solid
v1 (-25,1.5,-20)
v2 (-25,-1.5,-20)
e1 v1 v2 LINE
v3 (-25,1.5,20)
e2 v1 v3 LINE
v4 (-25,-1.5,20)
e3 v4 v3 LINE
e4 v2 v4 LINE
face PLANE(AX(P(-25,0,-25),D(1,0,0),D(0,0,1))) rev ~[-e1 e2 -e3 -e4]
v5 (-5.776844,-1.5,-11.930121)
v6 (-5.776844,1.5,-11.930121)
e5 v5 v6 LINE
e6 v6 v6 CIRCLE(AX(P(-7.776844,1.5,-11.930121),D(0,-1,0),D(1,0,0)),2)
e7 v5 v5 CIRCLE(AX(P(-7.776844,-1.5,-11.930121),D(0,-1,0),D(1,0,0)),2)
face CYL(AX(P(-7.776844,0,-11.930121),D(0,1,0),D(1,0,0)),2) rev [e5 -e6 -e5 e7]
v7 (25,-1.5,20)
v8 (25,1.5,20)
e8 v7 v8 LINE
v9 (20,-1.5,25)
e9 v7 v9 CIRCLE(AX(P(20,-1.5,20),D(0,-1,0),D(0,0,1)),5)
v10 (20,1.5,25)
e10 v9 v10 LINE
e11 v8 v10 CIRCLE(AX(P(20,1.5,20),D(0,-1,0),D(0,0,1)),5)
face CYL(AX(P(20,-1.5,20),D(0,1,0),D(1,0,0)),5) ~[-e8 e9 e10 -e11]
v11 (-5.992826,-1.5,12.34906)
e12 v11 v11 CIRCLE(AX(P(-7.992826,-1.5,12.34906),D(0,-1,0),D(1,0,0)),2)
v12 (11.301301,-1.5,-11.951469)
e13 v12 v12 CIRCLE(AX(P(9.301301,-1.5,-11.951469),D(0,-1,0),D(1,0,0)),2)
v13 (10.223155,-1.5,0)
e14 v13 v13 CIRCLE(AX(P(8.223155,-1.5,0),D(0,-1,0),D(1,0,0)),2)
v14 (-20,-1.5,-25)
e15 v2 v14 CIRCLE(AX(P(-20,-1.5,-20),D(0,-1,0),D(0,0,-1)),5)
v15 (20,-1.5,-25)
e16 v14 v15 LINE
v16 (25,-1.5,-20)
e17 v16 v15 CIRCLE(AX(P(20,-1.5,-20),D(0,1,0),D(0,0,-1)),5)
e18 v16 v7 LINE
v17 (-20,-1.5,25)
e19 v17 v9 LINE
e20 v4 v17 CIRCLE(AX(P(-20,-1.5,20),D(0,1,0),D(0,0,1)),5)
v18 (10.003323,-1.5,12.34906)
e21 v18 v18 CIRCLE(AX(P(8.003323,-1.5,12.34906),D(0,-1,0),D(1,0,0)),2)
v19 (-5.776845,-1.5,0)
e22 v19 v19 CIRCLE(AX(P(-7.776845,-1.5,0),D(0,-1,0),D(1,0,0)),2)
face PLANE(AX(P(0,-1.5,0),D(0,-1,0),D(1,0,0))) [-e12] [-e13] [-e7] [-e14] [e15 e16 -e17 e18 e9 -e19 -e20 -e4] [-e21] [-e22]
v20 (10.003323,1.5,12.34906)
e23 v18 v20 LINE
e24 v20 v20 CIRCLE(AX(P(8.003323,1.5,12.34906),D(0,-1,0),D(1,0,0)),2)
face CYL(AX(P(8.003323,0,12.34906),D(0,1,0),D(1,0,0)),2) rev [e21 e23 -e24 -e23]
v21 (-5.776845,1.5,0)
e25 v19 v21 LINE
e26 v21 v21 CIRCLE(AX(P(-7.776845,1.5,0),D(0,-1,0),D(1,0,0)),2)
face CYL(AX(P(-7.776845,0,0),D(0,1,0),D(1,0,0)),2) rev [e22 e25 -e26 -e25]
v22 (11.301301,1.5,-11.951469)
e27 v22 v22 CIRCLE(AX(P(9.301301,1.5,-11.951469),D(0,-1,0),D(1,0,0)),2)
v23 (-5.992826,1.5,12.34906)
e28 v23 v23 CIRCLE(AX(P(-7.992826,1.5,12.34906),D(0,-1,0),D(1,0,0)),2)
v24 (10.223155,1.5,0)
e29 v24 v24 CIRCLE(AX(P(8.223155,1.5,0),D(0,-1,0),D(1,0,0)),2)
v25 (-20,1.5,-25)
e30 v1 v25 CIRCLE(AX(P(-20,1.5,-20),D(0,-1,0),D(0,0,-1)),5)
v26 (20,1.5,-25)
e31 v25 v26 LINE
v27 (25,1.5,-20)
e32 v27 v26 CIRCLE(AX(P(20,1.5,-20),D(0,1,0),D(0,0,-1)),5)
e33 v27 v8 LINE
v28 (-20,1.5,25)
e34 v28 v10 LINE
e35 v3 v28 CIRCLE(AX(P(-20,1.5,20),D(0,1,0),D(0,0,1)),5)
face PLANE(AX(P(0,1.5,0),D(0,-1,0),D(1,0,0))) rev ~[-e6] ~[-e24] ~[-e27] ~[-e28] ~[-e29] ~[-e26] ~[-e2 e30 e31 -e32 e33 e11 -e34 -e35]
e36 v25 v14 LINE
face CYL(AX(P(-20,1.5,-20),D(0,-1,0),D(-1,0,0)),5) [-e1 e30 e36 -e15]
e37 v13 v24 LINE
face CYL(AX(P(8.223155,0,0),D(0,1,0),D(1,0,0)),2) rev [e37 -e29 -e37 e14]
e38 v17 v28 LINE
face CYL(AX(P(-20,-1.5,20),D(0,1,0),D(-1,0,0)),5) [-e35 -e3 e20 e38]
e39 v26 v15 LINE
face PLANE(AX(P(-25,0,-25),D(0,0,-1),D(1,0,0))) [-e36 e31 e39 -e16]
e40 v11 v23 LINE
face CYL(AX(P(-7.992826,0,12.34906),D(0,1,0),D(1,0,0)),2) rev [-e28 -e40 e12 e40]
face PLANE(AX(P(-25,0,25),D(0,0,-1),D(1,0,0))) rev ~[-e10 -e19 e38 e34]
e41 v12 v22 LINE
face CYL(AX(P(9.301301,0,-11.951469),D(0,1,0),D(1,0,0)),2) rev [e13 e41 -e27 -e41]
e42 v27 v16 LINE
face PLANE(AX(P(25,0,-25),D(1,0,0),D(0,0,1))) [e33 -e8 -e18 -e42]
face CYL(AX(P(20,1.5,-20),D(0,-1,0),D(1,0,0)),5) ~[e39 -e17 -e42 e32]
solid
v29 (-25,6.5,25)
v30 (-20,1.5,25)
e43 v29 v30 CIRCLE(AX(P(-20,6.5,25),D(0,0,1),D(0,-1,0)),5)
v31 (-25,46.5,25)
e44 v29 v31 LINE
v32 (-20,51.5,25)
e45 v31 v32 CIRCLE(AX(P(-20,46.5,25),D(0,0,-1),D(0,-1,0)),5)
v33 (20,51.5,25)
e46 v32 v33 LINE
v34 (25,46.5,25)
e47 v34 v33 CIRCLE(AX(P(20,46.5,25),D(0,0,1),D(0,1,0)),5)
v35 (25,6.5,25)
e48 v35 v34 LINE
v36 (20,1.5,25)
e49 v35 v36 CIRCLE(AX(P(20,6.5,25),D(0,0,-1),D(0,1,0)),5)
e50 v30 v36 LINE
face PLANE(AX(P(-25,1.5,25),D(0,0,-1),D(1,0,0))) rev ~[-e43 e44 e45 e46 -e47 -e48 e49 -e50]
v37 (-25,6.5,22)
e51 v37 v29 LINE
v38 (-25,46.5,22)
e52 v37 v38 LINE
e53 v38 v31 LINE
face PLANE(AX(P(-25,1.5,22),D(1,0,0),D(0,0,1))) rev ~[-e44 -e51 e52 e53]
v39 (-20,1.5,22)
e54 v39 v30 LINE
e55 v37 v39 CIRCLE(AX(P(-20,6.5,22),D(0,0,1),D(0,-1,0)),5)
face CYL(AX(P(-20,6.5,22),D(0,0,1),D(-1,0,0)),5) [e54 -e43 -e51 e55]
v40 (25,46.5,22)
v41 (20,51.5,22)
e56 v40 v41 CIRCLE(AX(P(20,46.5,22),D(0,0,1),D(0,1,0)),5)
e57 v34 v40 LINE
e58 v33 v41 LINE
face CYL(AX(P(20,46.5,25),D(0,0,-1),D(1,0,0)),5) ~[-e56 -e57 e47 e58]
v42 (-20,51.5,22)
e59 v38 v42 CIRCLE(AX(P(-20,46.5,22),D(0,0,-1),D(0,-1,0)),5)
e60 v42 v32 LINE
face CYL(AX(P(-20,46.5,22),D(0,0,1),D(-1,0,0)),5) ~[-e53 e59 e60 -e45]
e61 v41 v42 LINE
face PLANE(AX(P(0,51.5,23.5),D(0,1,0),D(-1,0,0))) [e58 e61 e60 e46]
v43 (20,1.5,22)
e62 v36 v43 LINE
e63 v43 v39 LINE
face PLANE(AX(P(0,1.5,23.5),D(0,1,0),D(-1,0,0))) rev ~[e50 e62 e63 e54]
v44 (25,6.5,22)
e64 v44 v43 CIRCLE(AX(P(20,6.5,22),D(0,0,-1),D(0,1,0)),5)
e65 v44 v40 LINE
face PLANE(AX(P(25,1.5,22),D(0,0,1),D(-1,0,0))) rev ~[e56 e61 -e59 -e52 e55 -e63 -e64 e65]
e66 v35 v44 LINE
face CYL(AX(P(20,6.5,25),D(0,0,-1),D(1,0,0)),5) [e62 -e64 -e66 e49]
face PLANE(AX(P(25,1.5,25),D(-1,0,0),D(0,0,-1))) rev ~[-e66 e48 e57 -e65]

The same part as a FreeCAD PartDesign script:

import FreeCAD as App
import Part
import Sketcher

V = App.Vector


def edges_at(feature, points):
    """Names of the edges that pass closest to the given points."""
    edges = feature.Shape.Edges
    near = lambda p: min(range(len(edges)), key=lambda i: edges[i].distToShape(Part.Vertex(*p))[0])
    return sorted({f"Edge{near(p) + 1}" for p in points})


def add_polygon(sketch, points):
    """Adds a closed chain of lines whose ends are joined by coincident constraints."""
    first, n = sketch.GeometryCount, len(points)
    for a, b in zip(points, points[1:] + points[:1]):
        sketch.addGeometry(Part.LineSegment(App.Vector(*a, 0), App.Vector(*b, 0)), False)
    for i in range(n):
        sketch.addConstraint(Sketcher.Constraint("Coincident", first + i, 2, first + (i + 1) % n, 1))

doc = App.newDocument("Part")
body = doc.addObject("PartDesign::Body", "Body")

# Sketch on XZ plane
sketch1 = body.newObject("Sketcher::SketchObject", "Sketch")
sketch1.AttachmentSupport = (doc.getObject("XZ_Plane"), [""])
sketch1.MapMode = "FlatFace"
add_polygon(sketch1, [(-25, 25), (-25, -25), (25, -25), (25, 25)])  # lines 0-3
sketch1.addGeometry(Part.Circle(V(-7.8, -11.9, 0), V(0, 0, 1), 2), False)  # 4
sketch1.addGeometry(Part.Circle(V(-7.8, 0, 0), V(0, 0, 1), 2), False)  # 5
sketch1.addGeometry(Part.Circle(V(9.3, -12, 0), V(0, 0, 1), 2), False)  # 6
sketch1.addGeometry(Part.Circle(V(8.2, 0, 0), V(0, 0, 1), 2), False)  # 7
sketch1.addGeometry(Part.Circle(V(-8, 12.3, 0), V(0, 0, 1), 2), False)  # 8
sketch1.addGeometry(Part.Circle(V(8, 12.3, 0), V(0, 0, 1), 2), False)  # 9
sketch1.addConstraint([
    Sketcher.Constraint("Vertical", 0),
    Sketcher.Constraint("Horizontal", 1),
    Sketcher.Constraint("Vertical", 2),
    Sketcher.Constraint("Horizontal", 3),
    Sketcher.Constraint("Equal", 4, 5),
    Sketcher.Constraint("Equal", 5, 6),
    Sketcher.Constraint("Equal", 6, 7),
    Sketcher.Constraint("Equal", 7, 8),
    Sketcher.Constraint("Equal", 8, 9),
    Sketcher.Constraint("Symmetric", 0, 2, 2, 2, -1, 1),
    Sketcher.Constraint("PointOnObject", 5, 3, -1),
    Sketcher.Constraint("PointOnObject", 7, 3, -1),
    Sketcher.Constraint("Horizontal", 8, 3, 9, 3),
    Sketcher.Constraint("Vertical", 4, 3, 5, 3),
    Sketcher.Constraint("Equal", 3, 0),
    Sketcher.Constraint("Diameter", 4, 4.0),
    Sketcher.Constraint("DistanceX", 1, 1, 1, 2, 50.0),
    Sketcher.Constraint("DistanceX", 5, 3, 7, 3, 16.0),
    Sketcher.Constraint("DistanceX", -1, 1, 6, 3, 9.301301),
    Sketcher.Constraint("DistanceY", 4, 3, -1, 1, 11.930121),
    Sketcher.Constraint("DistanceY", 6, 3, -1, 1, 11.951469),
    Sketcher.Constraint("DistanceY", -1, 1, 8, 3, 12.34906),
    Sketcher.Constraint("DistanceX", 8, 3, 5, 3, 0.215981),
    Sketcher.Constraint("DistanceX", 9, 3, 7, 3, 0.219832),
    Sketcher.Constraint("DistanceX", 4, 3, -1, 1, 7.776844),
])
pad1 = body.newObject("PartDesign::Pad", "Pad")
pad1.Profile = sketch1
pad1.Length = 3
pad1.Midplane = True
doc.recompute()

fillet = body.newObject("PartDesign::Fillet", "Fillet")
fillet.Base = (pad1, edges_at(pad1, [
    (-25, 0, 25),
    (25, 0, 25),
    (25, 0, -25),
    (-25, 0, -25),
]))
fillet.Radius = 5

# Sketch on XY plane
sketch2 = body.newObject("Sketcher::SketchObject", "Sketch001")
sketch2.AttachmentSupport = (doc.getObject("XY_Plane"), [""])
sketch2.MapMode = "FlatFace"
sketch2.addGeometry([
    Part.Circle(V(-8.2, 35.6, 0), V(0, 0, 1), 2),  # 0
    Part.Circle(V(8.3, 35.2, 0), V(0, 0, 1), 2),  # 1
    Part.Circle(V(8.3, 15.2, 0), V(0, 0, 1), 2),  # 2
    Part.Circle(V(0, 25.2, 0), V(0, 0, 1), 2),  # 3
    Part.Circle(V(-8.2, 15.2, 0), V(0, 0, 1), 2),  # 4
], False)
sketch2.addConstraint([
    Sketcher.Constraint("Equal", 0, 1),
    Sketcher.Constraint("Equal", 1, 2),
    Sketcher.Constraint("Equal", 2, 3),
    Sketcher.Constraint("Equal", 3, 4),
    Sketcher.Constraint("PointOnObject", 3, 3, -2),
    Sketcher.Constraint("Horizontal", 2, 3, 4, 3),
    Sketcher.Constraint("Vertical", 1, 3, 2, 3),
    Sketcher.Constraint("Vertical", 0, 3, 4, 3),
    Sketcher.Constraint("Diameter", 0, 4.0),
    Sketcher.Constraint("DistanceY", 2, 3, 1, 3, 20.0),
    Sketcher.Constraint("DistanceY", 3, 3, 1, 3, 10.0),
    Sketcher.Constraint("DistanceX", 0, 3, 1, 3, 16.570321),
    Sketcher.Constraint("DistanceY", 1, 3, 0, 3, 0.333332),
    Sketcher.Constraint("DistanceX", 0, 3, -1, 1, 8.232803),
    Sketcher.Constraint("DistanceY", -1, 1, 0, 3, 35.582046),
])
pocket1 = body.newObject("PartDesign::Pocket", "Pocket")
pocket1.Profile = sketch2
pocket1.Length = 3
pocket1.Midplane = True
body2 = doc.addObject("PartDesign::Body", "Body001")

# Sketch on XZ plane
sketch3 = body2.newObject("Sketcher::SketchObject", "Sketch002")
sketch3.AttachmentSupport = (doc.getObject("XZ_Plane001"), [""])
sketch3.MapMode = "FlatFace"
sketch3.AttachmentOffset = App.Placement(V(0, 0, -1.5), App.Rotation())
add_polygon(sketch3, [(-25, 25), (25, 25), (25, 22), (-25, 22)])  # lines 0-3
sketch3.addConstraint([
    Sketcher.Constraint("Horizontal", 0),
    Sketcher.Constraint("Vertical", 1),
    Sketcher.Constraint("Horizontal", 2),
    Sketcher.Constraint("Vertical", 3),
    Sketcher.Constraint("DistanceX", 0, 1, 0, 2, 50.0),
    Sketcher.Constraint("DistanceY", 1, 2, 1, 1, 3.0),
    Sketcher.Constraint("DistanceX", -1, 1, 0, 2, 25.0),
    Sketcher.Constraint("DistanceY", -1, 1, 0, 2, 25.0),
])
pad2 = body2.newObject("PartDesign::Pad", "Pad001")
pad2.Profile = sketch3
pad2.Length = 50
pad2.Reversed = True
doc.recompute()

fillet2 = body2.newObject("PartDesign::Fillet", "Fillet001")
fillet2.Base = (pad2, edges_at(pad2, [
    (25, 1.5, 23.5),
    (-25, 1.5, 23.5),
    (25, 51.5, 23.5),
    (-25, 51.5, 23.5),
]))
fillet2.Radius = 5

doc.recompute()
